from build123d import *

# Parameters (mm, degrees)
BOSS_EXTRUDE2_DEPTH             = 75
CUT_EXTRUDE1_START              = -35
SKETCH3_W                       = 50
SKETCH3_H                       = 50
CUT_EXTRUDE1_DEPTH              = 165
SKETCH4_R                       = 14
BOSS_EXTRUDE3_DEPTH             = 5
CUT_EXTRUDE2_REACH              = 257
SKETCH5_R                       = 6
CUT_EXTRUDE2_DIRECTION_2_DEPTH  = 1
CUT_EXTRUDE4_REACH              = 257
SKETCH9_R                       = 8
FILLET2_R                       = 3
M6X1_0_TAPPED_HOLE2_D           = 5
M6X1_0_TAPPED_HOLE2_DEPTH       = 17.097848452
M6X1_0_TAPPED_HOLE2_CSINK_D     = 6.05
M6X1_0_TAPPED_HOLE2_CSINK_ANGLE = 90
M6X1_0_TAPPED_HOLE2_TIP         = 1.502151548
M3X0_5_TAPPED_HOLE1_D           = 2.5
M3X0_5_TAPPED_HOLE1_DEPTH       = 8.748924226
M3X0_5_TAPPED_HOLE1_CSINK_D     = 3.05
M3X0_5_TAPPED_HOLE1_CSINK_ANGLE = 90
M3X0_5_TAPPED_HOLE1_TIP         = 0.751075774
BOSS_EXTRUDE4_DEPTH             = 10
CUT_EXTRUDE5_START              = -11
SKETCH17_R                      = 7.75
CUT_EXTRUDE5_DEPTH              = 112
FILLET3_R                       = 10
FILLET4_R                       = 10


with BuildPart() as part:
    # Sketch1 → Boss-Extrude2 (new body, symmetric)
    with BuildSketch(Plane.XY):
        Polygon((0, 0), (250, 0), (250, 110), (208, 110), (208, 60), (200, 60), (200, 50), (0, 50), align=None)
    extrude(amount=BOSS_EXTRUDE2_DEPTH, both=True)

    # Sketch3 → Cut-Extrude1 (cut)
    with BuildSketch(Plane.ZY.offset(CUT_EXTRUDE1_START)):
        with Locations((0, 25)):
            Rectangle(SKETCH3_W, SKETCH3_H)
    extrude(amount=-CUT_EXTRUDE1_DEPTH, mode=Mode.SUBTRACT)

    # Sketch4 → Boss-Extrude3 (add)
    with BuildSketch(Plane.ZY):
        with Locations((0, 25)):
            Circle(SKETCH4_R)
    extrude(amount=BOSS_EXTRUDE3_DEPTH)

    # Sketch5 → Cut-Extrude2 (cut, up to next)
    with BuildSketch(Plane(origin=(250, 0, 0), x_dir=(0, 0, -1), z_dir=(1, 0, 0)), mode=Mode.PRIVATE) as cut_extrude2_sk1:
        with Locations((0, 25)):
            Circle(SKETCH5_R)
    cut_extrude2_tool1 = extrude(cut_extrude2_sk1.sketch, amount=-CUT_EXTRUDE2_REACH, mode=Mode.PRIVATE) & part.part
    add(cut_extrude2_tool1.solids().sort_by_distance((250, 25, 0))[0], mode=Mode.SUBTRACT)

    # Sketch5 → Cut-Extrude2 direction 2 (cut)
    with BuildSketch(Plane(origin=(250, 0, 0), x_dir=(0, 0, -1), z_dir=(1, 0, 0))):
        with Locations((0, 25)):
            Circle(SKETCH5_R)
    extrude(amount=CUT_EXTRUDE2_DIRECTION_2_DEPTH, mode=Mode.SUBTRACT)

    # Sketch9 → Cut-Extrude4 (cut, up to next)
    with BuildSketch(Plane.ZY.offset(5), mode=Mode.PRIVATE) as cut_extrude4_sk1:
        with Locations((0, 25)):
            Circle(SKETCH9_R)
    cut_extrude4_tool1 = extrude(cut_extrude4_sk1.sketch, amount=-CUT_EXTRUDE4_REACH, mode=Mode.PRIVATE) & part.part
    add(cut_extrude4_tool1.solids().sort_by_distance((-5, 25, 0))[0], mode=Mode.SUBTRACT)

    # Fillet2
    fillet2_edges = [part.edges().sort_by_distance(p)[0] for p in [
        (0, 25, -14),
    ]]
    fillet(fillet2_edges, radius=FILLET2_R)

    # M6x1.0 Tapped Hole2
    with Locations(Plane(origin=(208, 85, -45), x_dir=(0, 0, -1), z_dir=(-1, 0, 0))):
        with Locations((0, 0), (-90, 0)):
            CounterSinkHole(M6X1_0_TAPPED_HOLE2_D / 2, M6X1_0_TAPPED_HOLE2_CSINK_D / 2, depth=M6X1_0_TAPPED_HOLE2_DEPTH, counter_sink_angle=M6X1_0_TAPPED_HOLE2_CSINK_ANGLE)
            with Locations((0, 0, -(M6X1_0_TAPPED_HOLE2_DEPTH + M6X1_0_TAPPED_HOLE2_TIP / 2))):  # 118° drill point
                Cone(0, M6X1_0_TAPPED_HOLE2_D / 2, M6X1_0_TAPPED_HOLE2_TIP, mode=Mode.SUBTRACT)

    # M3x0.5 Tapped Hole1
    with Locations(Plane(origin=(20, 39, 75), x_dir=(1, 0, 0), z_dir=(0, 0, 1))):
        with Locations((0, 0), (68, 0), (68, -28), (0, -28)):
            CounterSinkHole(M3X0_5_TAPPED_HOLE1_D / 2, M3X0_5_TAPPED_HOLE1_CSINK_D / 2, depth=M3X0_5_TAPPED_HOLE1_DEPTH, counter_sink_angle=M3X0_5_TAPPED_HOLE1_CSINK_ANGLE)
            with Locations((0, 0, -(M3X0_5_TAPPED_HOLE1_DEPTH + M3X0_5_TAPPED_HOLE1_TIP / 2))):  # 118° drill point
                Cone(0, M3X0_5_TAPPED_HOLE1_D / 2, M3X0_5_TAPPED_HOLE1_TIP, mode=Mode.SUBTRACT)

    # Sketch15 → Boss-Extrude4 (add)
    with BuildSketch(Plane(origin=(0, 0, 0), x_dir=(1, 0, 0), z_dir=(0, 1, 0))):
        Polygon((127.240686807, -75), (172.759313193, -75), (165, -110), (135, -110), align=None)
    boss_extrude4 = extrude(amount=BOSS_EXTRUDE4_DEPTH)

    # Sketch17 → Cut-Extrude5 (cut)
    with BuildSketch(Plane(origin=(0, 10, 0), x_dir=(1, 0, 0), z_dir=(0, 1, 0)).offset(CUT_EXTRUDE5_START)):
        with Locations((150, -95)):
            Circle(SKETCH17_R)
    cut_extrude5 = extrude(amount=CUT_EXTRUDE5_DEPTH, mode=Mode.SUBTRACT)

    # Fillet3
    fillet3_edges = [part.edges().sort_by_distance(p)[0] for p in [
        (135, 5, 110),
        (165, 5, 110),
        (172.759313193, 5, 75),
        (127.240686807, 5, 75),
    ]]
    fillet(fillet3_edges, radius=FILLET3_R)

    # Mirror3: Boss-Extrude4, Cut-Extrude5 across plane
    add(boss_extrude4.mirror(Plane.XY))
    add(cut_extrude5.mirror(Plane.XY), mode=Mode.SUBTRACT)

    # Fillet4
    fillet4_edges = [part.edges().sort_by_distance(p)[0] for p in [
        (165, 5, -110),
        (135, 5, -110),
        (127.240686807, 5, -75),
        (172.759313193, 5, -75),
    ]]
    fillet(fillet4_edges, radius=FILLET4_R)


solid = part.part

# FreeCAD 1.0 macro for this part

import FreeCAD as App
import Part
import Sketcher

V = App.Vector
Q = App.Units.Quantity


def edges_at(feature, points):
    """Names of the edges that pass closest to the given points."""
    edges = feature.Shape.Edges
    near = lambda p: min(range(len(edges)), key=lambda i: edges[i].distToShape(Part.Vertex(*p))[0])
    return sorted({f"Edge{near(p) + 1}" for p in points})

doc = App.newDocument("Part")
body = doc.addObject("PartDesign::Body", "Body")

# Sketch on XY plane
sketch1 = doc.addObject("Sketcher::SketchObject", "Sketch")
body.addObject(sketch1)
sketch1.AttachmentSupport = (doc.XY_Plane, [""])
sketch1.MapMode = "FlatFace"
sketch1.addGeometry(Part.LineSegment(V(0, 0, 0), V(250, 0, 0)), False)
sketch1.addGeometry(Part.LineSegment(V(250, 0, 0), V(250, 110, 0)), False)
sketch1.addGeometry(Part.LineSegment(V(250, 110, 0), V(208, 110, 0)), False)
sketch1.addGeometry(Part.LineSegment(V(208, 110, 0), V(208, 60, 0)), False)
sketch1.addGeometry(Part.LineSegment(V(208, 60, 0), V(200, 60, 0)), False)
sketch1.addGeometry(Part.LineSegment(V(200, 60, 0), V(200, 50, 0)), False)
sketch1.addGeometry(Part.LineSegment(V(200, 50, 0), V(0, 50, 0)), False)
sketch1.addGeometry(Part.LineSegment(V(0, 50, 0), V(0, 0, 0)), False)
sketch1.addConstraint(Sketcher.Constraint("Coincident", 0, 2, 1, 1))
sketch1.addConstraint(Sketcher.Constraint("Coincident", 1, 2, 2, 1))
sketch1.addConstraint(Sketcher.Constraint("Coincident", 2, 2, 3, 1))
sketch1.addConstraint(Sketcher.Constraint("Coincident", 3, 2, 4, 1))
sketch1.addConstraint(Sketcher.Constraint("Coincident", 4, 2, 5, 1))
sketch1.addConstraint(Sketcher.Constraint("Coincident", 5, 2, 6, 1))
sketch1.addConstraint(Sketcher.Constraint("Coincident", 6, 2, 7, 1))
sketch1.addConstraint(Sketcher.Constraint("Coincident", 7, 2, 0, 1))
sketch1.addConstraint(Sketcher.Constraint("Horizontal", 0))
sketch1.addConstraint(Sketcher.Constraint("Vertical", 1))
sketch1.addConstraint(Sketcher.Constraint("Horizontal", 2))
sketch1.addConstraint(Sketcher.Constraint("Vertical", 3))
sketch1.addConstraint(Sketcher.Constraint("Horizontal", 4))
sketch1.addConstraint(Sketcher.Constraint("Vertical", 5))
sketch1.addConstraint(Sketcher.Constraint("Horizontal", 6))
sketch1.addConstraint(Sketcher.Constraint("Vertical", 7))
sketch1.addConstraint(Sketcher.Constraint("Coincident", 7, 2, -1, 1))
sketch1.addConstraint(Sketcher.Constraint("Equal", 3, 7))
sketch1.addConstraint(Sketcher.Constraint("DistanceX", 0, 1, 0, 2, Q("250 mm")))
sketch1.addConstraint(Sketcher.Constraint("DistanceX", 2, 2, 2, 1, Q("42 mm")))
sketch1.addConstraint(Sketcher.Constraint("DistanceX", 4, 2, 4, 1, Q("8 mm")))
sketch1.addConstraint(Sketcher.Constraint("DistanceY", 1, 1, 1, 2, Q("110 mm")))
sketch1.addConstraint(Sketcher.Constraint("DistanceY", 3, 2, 3, 1, Q("50 mm")))
pad1 = doc.addObject("PartDesign::Pad", "Pad")
body.addObject(pad1)
pad1.Profile = sketch1
pad1.Length = 150
pad1.Midplane = True

# Sketch on YZ plane
sketch2 = doc.addObject("Sketcher::SketchObject", "Sketch001")
body.addObject(sketch2)
sketch2.AttachmentSupport = (doc.YZ_Plane, [""])
sketch2.MapMode = "FlatFace"
sketch2.AttachmentOffset = App.Placement(V(0, 0, 35), App.Rotation())
sketch2.addGeometry(Part.LineSegment(V(50, -25, 0), V(0, -25, 0)), False)
sketch2.addGeometry(Part.LineSegment(V(0, -25, 0), V(0, 25, 0)), False)
sketch2.addGeometry(Part.LineSegment(V(0, 25, 0), V(50, 25, 0)), False)
sketch2.addGeometry(Part.LineSegment(V(50, 25, 0), V(50, -25, 0)), False)
sketch2.addConstraint(Sketcher.Constraint("Coincident", 0, 2, 1, 1))
sketch2.addConstraint(Sketcher.Constraint("Coincident", 1, 2, 2, 1))
sketch2.addConstraint(Sketcher.Constraint("Coincident", 2, 2, 3, 1))
sketch2.addConstraint(Sketcher.Constraint("Coincident", 3, 2, 0, 1))
sketch2.addConstraint(Sketcher.Constraint("Horizontal", 0))
sketch2.addConstraint(Sketcher.Constraint("Vertical", 1))
sketch2.addConstraint(Sketcher.Constraint("Horizontal", 2))
sketch2.addConstraint(Sketcher.Constraint("Vertical", 3))
sketch2.addConstraint(Sketcher.Constraint("Symmetric", 0, 2, 1, 2, -1, 1))
sketch2.addConstraint(Sketcher.Constraint("Equal", 2, 1))
sketch2.addConstraint(Sketcher.Constraint("DistanceX", 0, 2, 0, 1, Q("50 mm")))
pocket1 = doc.addObject("PartDesign::Pocket", "Pocket")
body.addObject(pocket1)
pocket1.Profile = sketch2
pocket1.Length = 165
pocket1.Reversed = True

# Sketch on YZ plane
sketch3 = doc.addObject("Sketcher::SketchObject", "Sketch002")
body.addObject(sketch3)
sketch3.AttachmentSupport = (doc.YZ_Plane, [""])
sketch3.MapMode = "FlatFace"
sketch3.addGeometry(Part.Circle(V(25, 0, 0), V(0, 0, 1), 14), False)
sketch3.addConstraint(Sketcher.Constraint("PointOnObject", 0, 3, -1))
sketch3.addConstraint(Sketcher.Constraint("Diameter", 0, Q("28 mm")))
sketch3.addConstraint(Sketcher.Constraint("DistanceX", -1, 1, 0, 3, Q("25 mm")))
pad2 = doc.addObject("PartDesign::Pad", "Pad001")
body.addObject(pad2)
pad2.Profile = sketch3
pad2.Length = 5
pad2.Reversed = True

# Sketch on YZ plane
sketch4 = doc.addObject("Sketcher::SketchObject", "Sketch003")
body.addObject(sketch4)
sketch4.AttachmentSupport = (doc.YZ_Plane, [""])
sketch4.MapMode = "FlatFace"
sketch4.AttachmentOffset = App.Placement(V(0, 0, 250), App.Rotation())
sketch4.addGeometry(Part.Circle(V(25, 0, 0), V(0, 0, 1), 6), False)
sketch4.addConstraint(Sketcher.Constraint("PointOnObject", 0, 3, -1))
sketch4.addConstraint(Sketcher.Constraint("Diameter", 0, Q("12 mm")))
sketch4.addConstraint(Sketcher.Constraint("DistanceX", -1, 1, 0, 3, Q("25 mm")))
pocket2 = doc.addObject("PartDesign::Pocket", "Pocket001")
body.addObject(pocket2)
pocket2.Profile = sketch4
pocket2.Type = "UpToFirst"

# Sketch on YZ plane
sketch5 = doc.addObject("Sketcher::SketchObject", "Sketch004")
body.addObject(sketch5)
sketch5.AttachmentSupport = (doc.YZ_Plane, [""])
sketch5.MapMode = "FlatFace"
sketch5.AttachmentOffset = App.Placement(V(0, 0, 250), App.Rotation())
sketch5.addGeometry(Part.Circle(V(25, 0, 0), V(0, 0, 1), 6), False)
sketch5.addConstraint(Sketcher.Constraint("PointOnObject", 0, 3, -1))
sketch5.addConstraint(Sketcher.Constraint("Diameter", 0, Q("12 mm")))
sketch5.addConstraint(Sketcher.Constraint("DistanceX", -1, 1, 0, 3, Q("25 mm")))
pocket3 = doc.addObject("PartDesign::Pocket", "Pocket002")
body.addObject(pocket3)
pocket3.Profile = sketch5
pocket3.Length = 1
pocket3.Reversed = True

# Sketch on YZ plane
sketch6 = doc.addObject("Sketcher::SketchObject", "Sketch005")
body.addObject(sketch6)
sketch6.AttachmentSupport = (doc.YZ_Plane, [""])
sketch6.MapMode = "FlatFace"
sketch6.AttachmentOffset = App.Placement(V(0, 0, -5), App.Rotation())
sketch6.addGeometry(Part.Circle(V(25, 0, 0), V(0, 0, 1), 8), False)
sketch6.addConstraint(Sketcher.Constraint("PointOnObject", 0, 3, -1))
sketch6.addConstraint(Sketcher.Constraint("Diameter", 0, Q("16 mm")))
sketch6.addConstraint(Sketcher.Constraint("DistanceX", -1, 1, 0, 3, Q("25 mm")))
pocket4 = doc.addObject("PartDesign::Pocket", "Pocket003")
body.addObject(pocket4)
pocket4.Profile = sketch6
pocket4.Type = "UpToFirst"
pocket4.Reversed = True
doc.recompute()

fillet = doc.addObject("PartDesign::Fillet", "Fillet")
body.addObject(fillet)
fillet.Base = (pocket4, edges_at(pocket4, [(0, 25, -14)]))
fillet.Radius = 3

# Sketch on YZ plane
sketch7 = doc.addObject("Sketcher::SketchObject", "Sketch006")
body.addObject(sketch7)
sketch7.AttachmentSupport = (doc.YZ_Plane, [""])
sketch7.MapMode = "FlatFace"
sketch7.AttachmentOffset = App.Placement(V(0, 0, 208), App.Rotation())
sketch7.addGeometry(Part.Circle(V(85, -45, 0), V(0, 0, 1), 2.5), False)
sketch7.addGeometry(Part.Circle(V(85, 45, 0), V(0, 0, 1), 2.5), False)
sketch7.addConstraint(Sketcher.Constraint("Equal", 0, 1))
sketch7.addConstraint(Sketcher.Constraint("Symmetric", 0, 3, 1, 3, -1))
sketch7.addConstraint(Sketcher.Constraint("Diameter", 0, Q("5 mm")))
sketch7.addConstraint(Sketcher.Constraint("DistanceX", -1, 1, 0, 3, Q("85 mm")))
sketch7.addConstraint(Sketcher.Constraint("DistanceY", 0, 3, -1, 1, Q("45 mm")))
doc.recompute()
hole = doc.addObject("PartDesign::Hole", "Hole")
body.addObject(hole)
hole.Profile = sketch7
hole.ThreadType = "None"
hole.Diameter = 5
hole.DepthType = "Dimension"
hole.Depth = 17.097848
hole.DrillPoint = "Angled"
hole.DrillPointAngle = 118
hole.HoleCutType = "Countersink"
hole.HoleCutDiameter = 6.05
hole.HoleCutCountersinkAngle = 90
hole.Reversed = True

# Sketch on XY plane
sketch8 = doc.addObject("Sketcher::SketchObject", "Sketch007")
body.addObject(sketch8)
sketch8.AttachmentSupport = (doc.XY_Plane, [""])
sketch8.MapMode = "FlatFace"
sketch8.AttachmentOffset = App.Placement(V(0, 0, 75), App.Rotation())
sketch8.addGeometry(Part.Circle(V(20, 39, 0), V(0, 0, 1), 1.2), False)
sketch8.addGeometry(Part.Circle(V(88, 39, 0), V(0, 0, 1), 1.2), False)
sketch8.addGeometry(Part.Circle(V(88, 11, 0), V(0, 0, 1), 1.2), False)
sketch8.addGeometry(Part.Circle(V(20, 11, 0), V(0, 0, 1), 1.2), False)
sketch8.addConstraint(Sketcher.Constraint("Equal", 0, 1))
sketch8.addConstraint(Sketcher.Constraint("Equal", 1, 2))
sketch8.addConstraint(Sketcher.Constraint("Equal", 2, 3))
sketch8.addConstraint(Sketcher.Constraint("Horizontal", 0, 3, 1, 3))
sketch8.addConstraint(Sketcher.Constraint("Horizontal", 2, 3, 3, 3))
sketch8.addConstraint(Sketcher.Constraint("Vertical", 1, 3, 2, 3))
sketch8.addConstraint(Sketcher.Constraint("Vertical", 0, 3, 3, 3))
sketch8.addConstraint(Sketcher.Constraint("Diameter", 0, Q("2.5 mm")))
sketch8.addConstraint(Sketcher.Constraint("DistanceX", -1, 1, 0, 3, Q("20 mm")))
sketch8.addConstraint(Sketcher.Constraint("DistanceY", -1, 1, 0, 3, Q("39 mm")))
sketch8.addConstraint(Sketcher.Constraint("DistanceX", -1, 1, 1, 3, Q("88 mm")))
sketch8.addConstraint(Sketcher.Constraint("DistanceY", -1, 1, 2, 3, Q("11 mm")))
doc.recompute()
hole2 = doc.addObject("PartDesign::Hole", "Hole001")
body.addObject(hole2)
hole2.Profile = sketch8
hole2.ThreadType = "None"
hole2.Diameter = 2.5
hole2.DepthType = "Dimension"
hole2.Depth = 8.748924
hole2.DrillPoint = "Angled"
hole2.DrillPointAngle = 118
hole2.HoleCutType = "Countersink"
hole2.HoleCutDiameter = 3.05
hole2.HoleCutCountersinkAngle = 90

# Sketch on XZ plane
sketch9 = doc.addObject("Sketcher::SketchObject", "Sketch008")
body.addObject(sketch9)
sketch9.AttachmentSupport = (doc.XZ_Plane, [""])
sketch9.MapMode = "FlatFace"
sketch9.addGeometry(Part.LineSegment(V(173, 75, 0), V(127, 75, 0)), False)
sketch9.addGeometry(Part.LineSegment(V(127, 75, 0), V(135, 110, 0)), False)
sketch9.addGeometry(Part.LineSegment(V(135, 110, 0), V(165, 110, 0)), False)
sketch9.addGeometry(Part.LineSegment(V(165, 110, 0), V(173, 75, 0)), False)
sketch9.addConstraint(Sketcher.Constraint("Coincident", 0, 2, 1, 1))
sketch9.addConstraint(Sketcher.Constraint("Coincident", 1, 2, 2, 1))
sketch9.addConstraint(Sketcher.Constraint("Coincident", 2, 2, 3, 1))
sketch9.addConstraint(Sketcher.Constraint("Coincident", 3, 2, 0, 1))
sketch9.addConstraint(Sketcher.Constraint("Horizontal", 0))
sketch9.addConstraint(Sketcher.Constraint("Horizontal", 2))
sketch9.addConstraint(Sketcher.Constraint("Equal", 1, 3))
sketch9.addConstraint(Sketcher.Constraint("DistanceX", 2, 1, 2, 2, Q("30 mm")))
sketch9.addConstraint(Sketcher.Constraint("DistanceY", -1, 1, 0, 2, Q("75 mm")))
sketch9.addConstraint(Sketcher.Constraint("DistanceX", -1, 1, 1, 2, Q("135 mm")))
sketch9.addConstraint(Sketcher.Constraint("DistanceY", -1, 1, 1, 2, Q("110 mm")))
sketch9.addConstraint(Sketcher.Constraint("Angle", 1, Q("77.5 deg")))
pad3 = doc.addObject("PartDesign::Pad", "Pad002")
body.addObject(pad3)
pad3.Profile = sketch9
pad3.Length = 10
pad3.Reversed = True

# Sketch on XZ plane
sketch10 = doc.addObject("Sketcher::SketchObject", "Sketch009")
body.addObject(sketch10)
sketch10.AttachmentSupport = (doc.XZ_Plane, [""])
sketch10.MapMode = "FlatFace"
sketch10.AttachmentOffset = App.Placement(V(0, 0, 1), App.Rotation())
sketch10.addGeometry(Part.Circle(V(150, 95, 0), V(0, 0, 1), 8), False)
sketch10.addConstraint(Sketcher.Constraint("Diameter", 0, Q("15.5 mm")))
sketch10.addConstraint(Sketcher.Constraint("DistanceX", -1, 1, 0, 3, Q("150 mm")))
sketch10.addConstraint(Sketcher.Constraint("DistanceY", -1, 1, 0, 3, Q("95 mm")))
pocket5 = doc.addObject("PartDesign::Pocket", "Pocket004")
body.addObject(pocket5)
pocket5.Profile = sketch10
pocket5.Length = 112
doc.recompute()

fillet2 = doc.addObject("PartDesign::Fillet", "Fillet001")
body.addObject(fillet2)
fillet2.Base = (pocket5, edges_at(pocket5, [
    (135, 5, 110),
    (165, 5, 110),
    (172.759, 5, 75),
    (127.241, 5, 75),
]))
fillet2.Radius = 10
doc.recompute()

mirrored = doc.addObject("PartDesign::Mirrored", "Mirrored")
body.addObject(mirrored)
mirrored.Originals = [pad3, pocket5]
mirrored.MirrorPlane = (doc.XY_Plane, [""])
body.Tip = mirrored
doc.recompute()

fillet3 = doc.addObject("PartDesign::Fillet", "Fillet002")
body.addObject(fillet3)
fillet3.Base = (mirrored, edges_at(mirrored, [
    (165, 5, -110),
    (135, 5, -110),
    (127.241, 5, -75),
    (172.759, 5, -75),
]))
fillet3.Radius = 10

doc.recompute()
